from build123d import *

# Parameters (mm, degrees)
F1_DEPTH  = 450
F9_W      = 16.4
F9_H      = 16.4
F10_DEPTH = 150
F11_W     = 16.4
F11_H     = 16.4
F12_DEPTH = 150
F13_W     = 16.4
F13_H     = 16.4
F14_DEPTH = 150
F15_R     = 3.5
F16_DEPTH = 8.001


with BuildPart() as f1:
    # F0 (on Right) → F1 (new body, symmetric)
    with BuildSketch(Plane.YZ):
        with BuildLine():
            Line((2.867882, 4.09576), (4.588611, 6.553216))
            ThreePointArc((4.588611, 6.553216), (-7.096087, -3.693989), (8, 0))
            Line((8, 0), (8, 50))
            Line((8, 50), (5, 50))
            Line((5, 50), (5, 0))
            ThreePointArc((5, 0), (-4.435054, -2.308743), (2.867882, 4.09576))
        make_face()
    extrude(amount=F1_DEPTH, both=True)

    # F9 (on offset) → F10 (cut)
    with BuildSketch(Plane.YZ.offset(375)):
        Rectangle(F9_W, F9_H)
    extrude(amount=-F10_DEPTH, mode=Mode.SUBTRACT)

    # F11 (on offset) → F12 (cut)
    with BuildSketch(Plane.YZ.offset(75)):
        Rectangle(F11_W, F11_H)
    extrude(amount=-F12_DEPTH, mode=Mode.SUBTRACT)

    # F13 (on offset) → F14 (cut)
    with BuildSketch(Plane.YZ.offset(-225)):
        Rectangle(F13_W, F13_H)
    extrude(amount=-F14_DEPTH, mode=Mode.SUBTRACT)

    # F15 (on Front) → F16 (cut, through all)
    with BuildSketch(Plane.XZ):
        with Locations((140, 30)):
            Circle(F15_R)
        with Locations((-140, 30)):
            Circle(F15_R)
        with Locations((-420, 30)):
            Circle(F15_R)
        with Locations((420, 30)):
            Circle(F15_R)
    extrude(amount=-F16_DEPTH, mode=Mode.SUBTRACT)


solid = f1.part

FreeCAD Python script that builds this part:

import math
import FreeCAD as App
import Part
import Sketcher
Q = App.Units.Quantity

doc = App.newDocument("Part")
params = doc.addObject("Spreadsheet::Sheet", "Params")
for row, (alias, value) in enumerate([
    ("sketch1_radius", "8 mm"),
    ("sketch1_radius2", "5 mm"),
    ("sketch1_height", "50 mm"),
    ("pad1_length", "900 mm"),
    ("sketch2_width", "16.4 mm"),
    ("pocket1_length", "150 mm"),
    ("sketch3_width", "16.4 mm"),
    ("pocket2_length", "150 mm"),
    ("sketch4_width", "16.4 mm"),
    ("pocket3_length", "150 mm"),
    ("sketch5_diameter", "7 mm"),
], start=1):
    params.set(f"A{row}", alias)
    params.set(f"B{row}", "=" + value)
    params.setAlias(f"B{row}", alias)

body = doc.addObject("PartDesign::Body", "Body")

# Sketch on YZ plane
sketch1 = body.newObject("Sketcher::SketchObject", "Sketch")
sketch1.AttachmentSupport = (doc.getObject("YZ_Plane"), [""])
sketch1.MapMode = "FlatFace"
sketch1.addGeometry(Part.LineSegment(App.Vector(2.867882, 4.09576, 0), App.Vector(4.588611, 6.553216, 0)), False)
sketch1.addGeometry(Part.ArcOfCircle(Part.Circle(App.Vector(0, -0.000001, 0), App.Vector(0, 0, 1), 8), math.radians(55.000004), math.radians(360.000005)), False)
sketch1.addGeometry(Part.LineSegment(App.Vector(8, 0, 0), App.Vector(8, 50, 0)), False)
sketch1.addGeometry(Part.LineSegment(App.Vector(8, 50, 0), App.Vector(5, 50, 0)), False)
sketch1.addGeometry(Part.LineSegment(App.Vector(5, 50, 0), App.Vector(5, 0, 0)), False)
sketch1.addGeometry(Part.ArcOfCircle(Part.Circle(App.Vector(0, 0, 0), App.Vector(0, 0, 1), 5), math.radians(55.000003), math.radians(360.000003)), False)
sketch1.addConstraint(Sketcher.Constraint("Coincident", 0, 2, 1, 1))
sketch1.addConstraint(Sketcher.Constraint("Tangent", 1, 2, 2, 1))
sketch1.addConstraint(Sketcher.Constraint("Coincident", 2, 2, 3, 1))
sketch1.addConstraint(Sketcher.Constraint("Coincident", 3, 2, 4, 1))
sketch1.addConstraint(Sketcher.Constraint("Tangent", 4, 2, 5, 2))
sketch1.addConstraint(Sketcher.Constraint("Coincident", 5, 1, 0, 1))
sketch1.addConstraint(Sketcher.Constraint("Vertical", 2))
sketch1.addConstraint(Sketcher.Constraint("Horizontal", 3))
sketch1.addConstraint(Sketcher.Constraint("Vertical", 4))
sketch1.addConstraint(Sketcher.Constraint("Coincident", 1, 3, -1, 1))
sketch1.addConstraint(Sketcher.Constraint("Coincident", 5, 3, -1, 1))
sketch1.addConstraint(Sketcher.Constraint("Radius", 1, 8.0))
sketch1.addConstraint(Sketcher.Constraint("Radius", 5, 5.0))
sketch1.addConstraint(Sketcher.Constraint("DistanceY", 2, 1, 2, 2, 50.0))
sketch1.addConstraint(Sketcher.Constraint("Angle", 0, Q("55.000003 deg")))
sketch1.addConstraint(Sketcher.Constraint("DistanceX", -1, 1, 0, 2, 4.588611))
sketch1.setExpression("Constraints[11]", "Params.sketch1_radius")
sketch1.setExpression("Constraints[12]", "Params.sketch1_radius2")
sketch1.setExpression("Constraints[13]", "Params.sketch1_height")
pad1 = body.newObject("PartDesign::Pad", "Pad")
pad1.Profile = sketch1
pad1.setExpression("Length", "Params.pad1_length")
pad1.Midplane = True

# Sketch on YZ plane
sketch2 = body.newObject("Sketcher::SketchObject", "Sketch001")
sketch2.AttachmentSupport = (doc.getObject("YZ_Plane"), [""])
sketch2.MapMode = "FlatFace"
sketch2.AttachmentOffset = App.Placement(App.Vector(0, 0, 375), App.Rotation())
sketch2.addGeometry(Part.LineSegment(App.Vector(-8.2, 8.2, 0), App.Vector(-8.2, -8.2, 0)), False)
sketch2.addGeometry(Part.LineSegment(App.Vector(-8.2, -8.2, 0), App.Vector(8.2, -8.2, 0)), False)
sketch2.addGeometry(Part.LineSegment(App.Vector(8.2, -8.2, 0), App.Vector(8.2, 8.2, 0)), False)
sketch2.addGeometry(Part.LineSegment(App.Vector(8.2, 8.2, 0), App.Vector(-8.2, 8.2, 0)), False)
sketch2.addConstraint(Sketcher.Constraint("Coincident", 0, 2, 1, 1))
sketch2.addConstraint(Sketcher.Constraint("Coincident", 1, 2, 2, 1))
sketch2.addConstraint(Sketcher.Constraint("Coincident", 2, 2, 3, 1))
sketch2.addConstraint(Sketcher.Constraint("Coincident", 3, 2, 0, 1))
sketch2.addConstraint(Sketcher.Constraint("Vertical", 0))
sketch2.addConstraint(Sketcher.Constraint("Horizontal", 1))
sketch2.addConstraint(Sketcher.Constraint("Vertical", 2))
sketch2.addConstraint(Sketcher.Constraint("Horizontal", 3))
sketch2.addConstraint(Sketcher.Constraint("Symmetric", 0, 2, 2, 2, -1, 1))
sketch2.addConstraint(Sketcher.Constraint("Equal", 3, 0))
sketch2.addConstraint(Sketcher.Constraint("DistanceX", 1, 1, 1, 2, 16.4))
sketch2.setExpression("Constraints[10]", "Params.sketch2_width")
pocket1 = body.newObject("PartDesign::Pocket", "Pocket")
pocket1.Profile = sketch2
pocket1.setExpression("Length", "Params.pocket1_length")

# Sketch on YZ plane
sketch3 = body.newObject("Sketcher::SketchObject", "Sketch002")
sketch3.AttachmentSupport = (doc.getObject("YZ_Plane"), [""])
sketch3.MapMode = "FlatFace"
sketch3.AttachmentOffset = App.Placement(App.Vector(0, 0, 75), App.Rotation())
sketch3.addGeometry(Part.LineSegment(App.Vector(-8.2, 8.2, 0), App.Vector(-8.2, -8.2, 0)), False)
sketch3.addGeometry(Part.LineSegment(App.Vector(-8.2, -8.2, 0), App.Vector(8.2, -8.2, 0)), False)
sketch3.addGeometry(Part.LineSegment(App.Vector(8.2, -8.2, 0), App.Vector(8.2, 8.2, 0)), False)
sketch3.addGeometry(Part.LineSegment(App.Vector(8.2, 8.2, 0), App.Vector(-8.2, 8.2, 0)), False)
sketch3.addConstraint(Sketcher.Constraint("Coincident", 0, 2, 1, 1))
sketch3.addConstraint(Sketcher.Constraint("Coincident", 1, 2, 2, 1))
sketch3.addConstraint(Sketcher.Constraint("Coincident", 2, 2, 3, 1))
sketch3.addConstraint(Sketcher.Constraint("Coincident", 3, 2, 0, 1))
sketch3.addConstraint(Sketcher.Constraint("Vertical", 0))
sketch3.addConstraint(Sketcher.Constraint("Horizontal", 1))
sketch3.addConstraint(Sketcher.Constraint("Vertical", 2))
sketch3.addConstraint(Sketcher.Constraint("Horizontal", 3))
sketch3.addConstraint(Sketcher.Constraint("Symmetric", 0, 2, 2, 2, -1, 1))
sketch3.addConstraint(Sketcher.Constraint("Equal", 3, 0))
sketch3.addConstraint(Sketcher.Constraint("DistanceX", 1, 1, 1, 2, 16.4))
sketch3.setExpression("Constraints[10]", "Params.sketch3_width")
pocket2 = body.newObject("PartDesign::Pocket", "Pocket001")
pocket2.Profile = sketch3
pocket2.setExpression("Length", "Params.pocket2_length")

# Sketch on YZ plane
sketch4 = body.newObject("Sketcher::SketchObject", "Sketch003")
sketch4.AttachmentSupport = (doc.getObject("YZ_Plane"), [""])
sketch4.MapMode = "FlatFace"
sketch4.AttachmentOffset = App.Placement(App.Vector(0, 0, -225), App.Rotation())
sketch4.addGeometry(Part.LineSegment(App.Vector(-8.2, 8.2, 0), App.Vector(-8.2, -8.2, 0)), False)
sketch4.addGeometry(Part.LineSegment(App.Vector(-8.2, -8.2, 0), App.Vector(8.2, -8.2, 0)), False)
sketch4.addGeometry(Part.LineSegment(App.Vector(8.2, -8.2, 0), App.Vector(8.2, 8.2, 0)), False)
sketch4.addGeometry(Part.LineSegment(App.Vector(8.2, 8.2, 0), App.Vector(-8.2, 8.2, 0)), False)
sketch4.addConstraint(Sketcher.Constraint("Coincident", 0, 2, 1, 1))
sketch4.addConstraint(Sketcher.Constraint("Coincident", 1, 2, 2, 1))
sketch4.addConstraint(Sketcher.Constraint("Coincident", 2, 2, 3, 1))
sketch4.addConstraint(Sketcher.Constraint("Coincident", 3, 2, 0, 1))
sketch4.addConstraint(Sketcher.Constraint("Vertical", 0))
sketch4.addConstraint(Sketcher.Constraint("Horizontal", 1))
sketch4.addConstraint(Sketcher.Constraint("Vertical", 2))
sketch4.addConstraint(Sketcher.Constraint("Horizontal", 3))
sketch4.addConstraint(Sketcher.Constraint("Symmetric", 0, 2, 2, 2, -1, 1))
sketch4.addConstraint(Sketcher.Constraint("Equal", 3, 0))
sketch4.addConstraint(Sketcher.Constraint("DistanceX", 1, 1, 1, 2, 16.4))
sketch4.setExpression("Constraints[10]", "Params.sketch4_width")
pocket3 = body.newObject("PartDesign::Pocket", "Pocket002")
pocket3.Profile = sketch4
pocket3.setExpression("Length", "Params.pocket3_length")

# Sketch on XZ plane
sketch5 = body.newObject("Sketcher::SketchObject", "Sketch004")
sketch5.AttachmentSupport = (doc.getObject("XZ_Plane"), [""])
sketch5.MapMode = "FlatFace"
sketch5.addGeometry(Part.Circle(App.Vector(140, 30, 0), App.Vector(0, 0, 1), 3.5), False)
sketch5.addGeometry(Part.Circle(App.Vector(-140, 30, 0), App.Vector(0, 0, 1), 3.5), False)
sketch5.addGeometry(Part.Circle(App.Vector(-420, 30, 0), App.Vector(0, 0, 1), 3.5), False)
sketch5.addGeometry(Part.Circle(App.Vector(420, 30, 0), App.Vector(0, 0, 1), 3.5), False)
sketch5.addConstraint(Sketcher.Constraint("Equal", 0, 1))
sketch5.addConstraint(Sketcher.Constraint("Equal", 1, 2))
sketch5.addConstraint(Sketcher.Constraint("Equal", 2, 3))
sketch5.addConstraint(Sketcher.Constraint("Symmetric", 0, 3, 1, 3, -2))
sketch5.addConstraint(Sketcher.Constraint("Symmetric", 2, 3, 3, 3, -2))
sketch5.addConstraint(Sketcher.Constraint("Horizontal", 1, 3, 2, 3))
sketch5.addConstraint(Sketcher.Constraint("Diameter", 0, 7.0))
sketch5.addConstraint(Sketcher.Constraint("DistanceX", -1, 1, 0, 3, 140.0))
sketch5.addConstraint(Sketcher.Constraint("DistanceY", -1, 1, 0, 3, 30.0))
sketch5.addConstraint(Sketcher.Constraint("DistanceX", 2, 3, -1, 1, 420.0))
sketch5.setExpression("Constraints[6]", "Params.sketch5_diameter")
pocket4 = body.newObject("PartDesign::Pocket", "Pocket003")
pocket4.Profile = sketch5
pocket4.Type = "ThroughAll"

doc.recompute()
